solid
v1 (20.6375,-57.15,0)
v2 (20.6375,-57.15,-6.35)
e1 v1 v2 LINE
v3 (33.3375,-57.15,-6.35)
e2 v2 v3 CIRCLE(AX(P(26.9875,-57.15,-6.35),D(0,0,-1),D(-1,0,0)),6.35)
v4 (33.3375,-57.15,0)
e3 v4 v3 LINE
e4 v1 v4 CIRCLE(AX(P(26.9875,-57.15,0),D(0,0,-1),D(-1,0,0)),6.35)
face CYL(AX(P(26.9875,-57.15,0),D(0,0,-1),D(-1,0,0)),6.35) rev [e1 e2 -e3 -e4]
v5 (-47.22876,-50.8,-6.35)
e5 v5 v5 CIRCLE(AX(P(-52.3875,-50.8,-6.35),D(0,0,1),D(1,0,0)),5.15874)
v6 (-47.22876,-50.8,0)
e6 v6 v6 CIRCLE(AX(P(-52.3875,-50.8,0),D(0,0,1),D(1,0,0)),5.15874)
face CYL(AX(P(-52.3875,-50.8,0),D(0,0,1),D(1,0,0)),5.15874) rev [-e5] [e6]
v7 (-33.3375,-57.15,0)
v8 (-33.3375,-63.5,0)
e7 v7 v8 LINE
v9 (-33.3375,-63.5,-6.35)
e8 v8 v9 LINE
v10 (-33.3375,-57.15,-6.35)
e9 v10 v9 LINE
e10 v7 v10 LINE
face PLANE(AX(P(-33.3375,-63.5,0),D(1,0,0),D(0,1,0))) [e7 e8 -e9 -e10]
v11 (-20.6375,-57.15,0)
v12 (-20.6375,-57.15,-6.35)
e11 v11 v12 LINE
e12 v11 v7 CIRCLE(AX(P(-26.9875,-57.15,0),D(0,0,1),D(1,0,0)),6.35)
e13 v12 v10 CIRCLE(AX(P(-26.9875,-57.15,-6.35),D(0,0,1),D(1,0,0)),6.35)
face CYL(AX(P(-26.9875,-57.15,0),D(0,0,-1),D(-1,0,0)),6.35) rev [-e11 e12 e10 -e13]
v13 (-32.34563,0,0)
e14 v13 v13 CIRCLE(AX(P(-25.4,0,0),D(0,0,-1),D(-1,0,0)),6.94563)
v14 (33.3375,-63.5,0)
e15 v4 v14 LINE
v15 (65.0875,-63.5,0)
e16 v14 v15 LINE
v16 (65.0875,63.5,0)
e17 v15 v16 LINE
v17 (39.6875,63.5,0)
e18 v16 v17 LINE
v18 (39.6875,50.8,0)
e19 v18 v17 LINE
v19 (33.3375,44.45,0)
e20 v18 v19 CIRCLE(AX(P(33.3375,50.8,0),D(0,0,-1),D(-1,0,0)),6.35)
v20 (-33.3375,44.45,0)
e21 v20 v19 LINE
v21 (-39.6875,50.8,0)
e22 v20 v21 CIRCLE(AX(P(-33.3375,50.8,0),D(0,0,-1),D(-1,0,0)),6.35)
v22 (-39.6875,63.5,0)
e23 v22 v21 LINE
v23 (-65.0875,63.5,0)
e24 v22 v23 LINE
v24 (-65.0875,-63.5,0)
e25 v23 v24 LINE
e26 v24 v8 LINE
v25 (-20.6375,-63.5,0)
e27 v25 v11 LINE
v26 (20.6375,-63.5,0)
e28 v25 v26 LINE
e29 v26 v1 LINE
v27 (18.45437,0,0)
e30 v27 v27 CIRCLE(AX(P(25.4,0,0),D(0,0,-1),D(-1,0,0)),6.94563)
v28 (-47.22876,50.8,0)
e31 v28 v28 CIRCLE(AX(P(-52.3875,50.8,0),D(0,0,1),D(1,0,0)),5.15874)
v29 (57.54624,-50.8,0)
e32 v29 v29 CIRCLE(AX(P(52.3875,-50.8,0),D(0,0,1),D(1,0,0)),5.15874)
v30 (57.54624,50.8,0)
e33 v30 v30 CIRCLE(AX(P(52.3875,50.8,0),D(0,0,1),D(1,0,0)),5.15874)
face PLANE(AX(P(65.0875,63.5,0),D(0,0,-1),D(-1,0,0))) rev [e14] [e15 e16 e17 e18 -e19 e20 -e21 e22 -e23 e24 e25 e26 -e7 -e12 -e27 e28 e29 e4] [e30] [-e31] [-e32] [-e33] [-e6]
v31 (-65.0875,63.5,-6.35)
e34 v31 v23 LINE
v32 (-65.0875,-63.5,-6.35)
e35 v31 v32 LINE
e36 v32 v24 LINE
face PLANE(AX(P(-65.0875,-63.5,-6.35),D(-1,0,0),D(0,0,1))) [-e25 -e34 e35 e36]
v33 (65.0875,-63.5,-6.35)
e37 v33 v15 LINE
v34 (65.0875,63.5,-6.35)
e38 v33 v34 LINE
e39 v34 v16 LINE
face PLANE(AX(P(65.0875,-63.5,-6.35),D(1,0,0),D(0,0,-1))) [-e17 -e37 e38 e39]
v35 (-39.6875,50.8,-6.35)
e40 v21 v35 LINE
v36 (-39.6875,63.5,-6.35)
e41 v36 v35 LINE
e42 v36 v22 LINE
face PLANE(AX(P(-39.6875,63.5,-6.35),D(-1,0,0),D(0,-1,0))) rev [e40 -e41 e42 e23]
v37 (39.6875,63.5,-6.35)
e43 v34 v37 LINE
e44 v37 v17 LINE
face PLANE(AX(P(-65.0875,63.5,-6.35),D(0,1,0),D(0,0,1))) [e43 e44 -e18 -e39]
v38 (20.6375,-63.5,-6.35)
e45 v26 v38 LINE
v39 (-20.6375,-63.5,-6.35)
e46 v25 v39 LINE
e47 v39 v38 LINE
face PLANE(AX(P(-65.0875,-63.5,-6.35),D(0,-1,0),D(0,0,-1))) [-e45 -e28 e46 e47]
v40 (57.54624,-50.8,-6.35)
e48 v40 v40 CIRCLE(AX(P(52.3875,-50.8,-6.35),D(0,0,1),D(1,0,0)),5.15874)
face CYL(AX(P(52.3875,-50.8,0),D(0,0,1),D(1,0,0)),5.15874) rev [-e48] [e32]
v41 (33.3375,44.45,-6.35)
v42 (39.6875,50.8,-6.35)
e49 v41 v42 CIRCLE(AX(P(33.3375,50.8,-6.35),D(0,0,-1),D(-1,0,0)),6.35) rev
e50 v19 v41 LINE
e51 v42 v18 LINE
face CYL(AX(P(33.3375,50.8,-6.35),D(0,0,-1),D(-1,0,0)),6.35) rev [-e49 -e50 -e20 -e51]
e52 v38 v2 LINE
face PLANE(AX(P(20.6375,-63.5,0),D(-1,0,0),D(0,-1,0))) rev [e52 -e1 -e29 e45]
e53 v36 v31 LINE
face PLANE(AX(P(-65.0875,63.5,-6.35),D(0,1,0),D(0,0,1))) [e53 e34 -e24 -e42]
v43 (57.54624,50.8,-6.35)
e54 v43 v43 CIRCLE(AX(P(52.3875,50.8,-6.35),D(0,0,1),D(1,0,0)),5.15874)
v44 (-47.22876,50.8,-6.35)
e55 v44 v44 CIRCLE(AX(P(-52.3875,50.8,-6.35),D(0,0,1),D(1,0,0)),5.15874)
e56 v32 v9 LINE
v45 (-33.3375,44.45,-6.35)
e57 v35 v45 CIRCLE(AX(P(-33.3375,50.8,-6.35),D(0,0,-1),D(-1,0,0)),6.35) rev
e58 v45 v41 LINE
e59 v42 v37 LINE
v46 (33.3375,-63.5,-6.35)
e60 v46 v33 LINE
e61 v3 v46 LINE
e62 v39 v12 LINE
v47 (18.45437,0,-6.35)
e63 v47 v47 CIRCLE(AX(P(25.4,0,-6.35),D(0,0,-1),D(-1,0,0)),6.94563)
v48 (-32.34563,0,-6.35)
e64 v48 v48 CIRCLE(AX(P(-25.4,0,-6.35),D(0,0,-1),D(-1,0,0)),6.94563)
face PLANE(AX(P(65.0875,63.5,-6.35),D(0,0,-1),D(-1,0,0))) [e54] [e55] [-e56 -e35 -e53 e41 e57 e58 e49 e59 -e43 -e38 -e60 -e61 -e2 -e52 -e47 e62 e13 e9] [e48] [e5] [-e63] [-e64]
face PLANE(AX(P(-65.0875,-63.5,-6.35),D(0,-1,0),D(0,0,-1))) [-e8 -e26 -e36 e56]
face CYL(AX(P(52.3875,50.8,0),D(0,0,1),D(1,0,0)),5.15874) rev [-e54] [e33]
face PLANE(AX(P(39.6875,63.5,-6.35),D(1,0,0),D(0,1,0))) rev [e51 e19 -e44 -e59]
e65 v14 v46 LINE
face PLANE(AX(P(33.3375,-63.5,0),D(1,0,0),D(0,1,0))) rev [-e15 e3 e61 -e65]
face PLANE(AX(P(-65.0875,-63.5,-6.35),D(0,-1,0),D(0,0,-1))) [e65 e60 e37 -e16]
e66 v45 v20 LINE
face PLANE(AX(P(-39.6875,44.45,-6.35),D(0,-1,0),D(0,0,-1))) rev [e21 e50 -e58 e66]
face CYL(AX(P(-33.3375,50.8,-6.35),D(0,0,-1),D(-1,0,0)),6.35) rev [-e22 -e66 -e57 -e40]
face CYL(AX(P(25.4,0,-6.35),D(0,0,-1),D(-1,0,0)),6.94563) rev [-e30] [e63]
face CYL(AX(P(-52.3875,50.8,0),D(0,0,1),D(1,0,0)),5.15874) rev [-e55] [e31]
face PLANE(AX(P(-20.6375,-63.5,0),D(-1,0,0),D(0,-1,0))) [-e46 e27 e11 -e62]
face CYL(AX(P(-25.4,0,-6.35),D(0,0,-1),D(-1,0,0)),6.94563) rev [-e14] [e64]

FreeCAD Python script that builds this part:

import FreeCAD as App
import Part
import Sketcher

V = App.Vector
Q = App.Units.Quantity


def edges_at(feature, points):
    """Names of the edges that pass closest to the given points."""
    edges = feature.Shape.Edges
    near = lambda p: min(range(len(edges)), key=lambda i: edges[i].distToShape(Part.Vertex(*p))[0])
    return sorted({f"Edge{near(p) + 1}" for p in points})


def add_polygon(sketch, points):
    """Adds a closed chain of lines whose ends are joined by coincident constraints."""
    first, n = sketch.GeometryCount, len(points)
    for a, b in zip(points, points[1:] + points[:1]):
        sketch.addGeometry(Part.LineSegment(App.Vector(*a, 0), App.Vector(*b, 0)), False)
    for i in range(n):
        sketch.addConstraint(Sketcher.Constraint("Coincident", first + i, 2, first + (i + 1) % n, 1))

doc = App.newDocument("Part")
body = doc.addObject("PartDesign::Body", "Body")

# Sketch on XY plane
sketch1 = body.newObject("Sketcher::SketchObject", "Sketch")
sketch1.AttachmentSupport = (doc.getObject("XY_Plane"), [""])
sketch1.MapMode = "FlatFace"
add_polygon(sketch1, [(-65.0875, 63.5), (-65.0875, -63.5), (65.0875, -63.5), (65.0875, 63.5)])  # lines 0-3
sketch1.addConstraint([
    Sketcher.Constraint("Vertical", 0),
    Sketcher.Constraint("Horizontal", 1),
    Sketcher.Constraint("Vertical", 2),
    Sketcher.Constraint("Horizontal", 3),
    Sketcher.Constraint("Symmetric", 0, 2, 2, 2, -1, 1),
    Sketcher.Constraint("DistanceY", 0, 2, 0, 1, Q("5 in")),
    Sketcher.Constraint("DistanceX", 1, 1, 1, 2, Q("5.125 in")),
])
pad1 = body.newObject("PartDesign::Pad", "Pad")
pad1.Profile = sketch1
pad1.Length = Q("0.25 in")
pad1.Reversed = True

# Sketch on XY plane
sketch2 = body.newObject("Sketcher::SketchObject", "Sketch001")
sketch2.AttachmentSupport = (doc.getObject("XY_Plane"), [""])
sketch2.MapMode = "FlatFace"
sketch2.addGeometry([
    Part.Circle(V(-52.3875, 50.8, 0), V(0, 0, 1), 5.15874),
    Part.Circle(V(52.3875, 50.8, 0), V(0, 0, 1), 5.15874),
    Part.Circle(V(52.3875, -50.8, 0), V(0, 0, 1), 5.15874),
    Part.Circle(V(-52.3875, -50.8, 0), V(0, 0, 1), 5.15874),
], False)
sketch2.addConstraint([
    Sketcher.Constraint("Equal", 0, 1),
    Sketcher.Constraint("Equal", 1, 2),
    Sketcher.Constraint("Equal", 2, 3),
    Sketcher.Constraint("Symmetric", 0, 3, 2, 3, -1, 1),
    Sketcher.Constraint("Symmetric", 1, 3, 3, 3, -1, 1),
    Sketcher.Constraint("Symmetric", 0, 3, 1, 3, -2),
    Sketcher.Constraint("DistanceY", -1, 1, 0, 3, Q("2 in")),
    Sketcher.Constraint("Diameter", 0, Q("0.4062 in")),
    Sketcher.Constraint("DistanceX", 0, 3, -1, 1, Q("2.0625 in")),
])
doc.recompute()
hole = body.newObject("PartDesign::Hole", "Hole")
hole.Profile = sketch2
hole.ThreadType = "None"
hole.Diameter = Q("0.4062 in")
hole.DepthType = "ThroughAll"

# Sketch on XY plane
sketch3 = body.newObject("Sketcher::SketchObject", "Sketch002")
sketch3.AttachmentSupport = (doc.getObject("XY_Plane"), [""])
sketch3.MapMode = "FlatFace"
add_polygon(sketch3, [(-39.6875, 63.5), (-39.6875, 44.45), (39.6875, 44.45), (39.6875, 63.5)])  # lines 0-3
sketch3.addConstraint([
    Sketcher.Constraint("Vertical", 0),
    Sketcher.Constraint("Horizontal", 1),
    Sketcher.Constraint("Vertical", 2),
    Sketcher.Constraint("Horizontal", 3),
    Sketcher.Constraint("DistanceY", 0, 2, 0, 1, Q("0.75 in")),
    Sketcher.Constraint("DistanceY", -1, 1, 2, 2, Q("2.5 in")),
    Sketcher.Constraint("DistanceX", 1, 1, 1, 2, Q("3.125 in")),
    Sketcher.Constraint("DistanceX", 0, 2, -1, 1, Q("1.5625 in")),
])
pocket1 = body.newObject("PartDesign::Pocket", "Pocket")
pocket1.Profile = sketch3
pocket1.Type = "ThroughAll"
doc.recompute()

fillet = body.newObject("PartDesign::Fillet", "Fillet")
fillet.Base = (pocket1, edges_at(pocket1, [(-39.688, 44.45, -3.175), (39.688, 44.45, -3.175)]))
fillet.Radius = Q("0.25 in")

# Sketch on XY plane
sketch4 = body.newObject("Sketcher::SketchObject", "Sketch003")
sketch4.AttachmentSupport = (doc.getObject("XY_Plane"), [""])
sketch4.MapMode = "FlatFace"
sketch4.AttachmentOffset = App.Placement(V(0, 0, -0.25 * 25.4), App.Rotation())
add_polygon(sketch4, [(33.3375, -57.15), (33.3375, -63.5), (20.6375, -63.5), (20.6375, -57.15)])  # lines 0-3
sketch4.addConstraint([
    Sketcher.Constraint("Vertical", 0),
    Sketcher.Constraint("Horizontal", 1),
    Sketcher.Constraint("Vertical", 2),
    Sketcher.Constraint("Horizontal", 3),
    Sketcher.Constraint("DistanceX", 1, 2, 1, 1, Q("0.5 in")),
    Sketcher.Constraint("DistanceY", 0, 2, 0, 1, Q("0.25 in")),
    Sketcher.Constraint("DistanceY", 0, 2, -1, 1, Q("2.5 in")),
    Sketcher.Constraint("DistanceX", -1, 1, 0, 2, Q("1.3125 in")),
])
pocket2 = body.newObject("PartDesign::Pocket", "Pocket001")
pocket2.Profile = sketch4
pocket2.Type = "ThroughAll"
pocket2.Reversed = True

# Sketch on XY plane
sketch5 = body.newObject("Sketcher::SketchObject", "Sketch004")
sketch5.AttachmentSupport = (doc.getObject("XY_Plane"), [""])
sketch5.MapMode = "FlatFace"
sketch5.AttachmentOffset = App.Placement(V(0, 0, -0.25 * 25.4), App.Rotation())
sketch5.addGeometry(Part.Circle(V(26.9875, -57.15, 0), V(0, 0, 1), 6.35), False)
sketch5.addConstraint([
    Sketcher.Constraint("Diameter", 0, Q("0.5 in")),
    Sketcher.Constraint("DistanceY", 0, 3, -1, 1, Q("2.25 in")),
    Sketcher.Constraint("DistanceX", -1, 1, 0, 3, Q("1.0625 in")),
])
pocket3 = body.newObject("PartDesign::Pocket", "Pocket002")
pocket3.Profile = sketch5
pocket3.Type = "ThroughAll"
pocket3.Reversed = True
doc.recompute()

mirrored = body.newObject("PartDesign::Mirrored", "Mirrored")
mirrored.Originals = [pocket2, pocket3]
mirrored.MirrorPlane = (doc.getObject("YZ_Plane"), [""])
body.Tip = mirrored

# Sketch on XY plane
sketch6 = body.newObject("Sketcher::SketchObject", "Sketch005")
sketch6.AttachmentSupport = (doc.getObject("XY_Plane"), [""])
sketch6.MapMode = "FlatFace"
sketch6.AttachmentOffset = App.Placement(V(0, 0, -0.25 * 25.4), App.Rotation())
sketch6.addGeometry([
    Part.Circle(V(25.4, 0, 0), V(0, 0, 1), 6.94563),
    Part.Circle(V(-25.4, 0, 0), V(0, 0, 1), 6.94563),
], False)
sketch6.addConstraint([
    Sketcher.Constraint("Equal", 0, 1),
    Sketcher.Constraint("Symmetric", 0, 3, 1, 3, -1, 1),
    Sketcher.Constraint("PointOnObject", 0, 3, -1),
    Sketcher.Constraint("DistanceX", -1, 1, 0, 3, Q("1 in")),
    Sketcher.Constraint("Diameter", 0, Q("0.5469 in")),
])
doc.recompute()
hole2 = body.newObject("PartDesign::Hole", "Hole001")
hole2.Profile = sketch6
hole2.ThreadType = "None"
hole2.Diameter = Q("0.5469 in")
hole2.DepthType = "ThroughAll"
hole2.Reversed = True

doc.recompute()
